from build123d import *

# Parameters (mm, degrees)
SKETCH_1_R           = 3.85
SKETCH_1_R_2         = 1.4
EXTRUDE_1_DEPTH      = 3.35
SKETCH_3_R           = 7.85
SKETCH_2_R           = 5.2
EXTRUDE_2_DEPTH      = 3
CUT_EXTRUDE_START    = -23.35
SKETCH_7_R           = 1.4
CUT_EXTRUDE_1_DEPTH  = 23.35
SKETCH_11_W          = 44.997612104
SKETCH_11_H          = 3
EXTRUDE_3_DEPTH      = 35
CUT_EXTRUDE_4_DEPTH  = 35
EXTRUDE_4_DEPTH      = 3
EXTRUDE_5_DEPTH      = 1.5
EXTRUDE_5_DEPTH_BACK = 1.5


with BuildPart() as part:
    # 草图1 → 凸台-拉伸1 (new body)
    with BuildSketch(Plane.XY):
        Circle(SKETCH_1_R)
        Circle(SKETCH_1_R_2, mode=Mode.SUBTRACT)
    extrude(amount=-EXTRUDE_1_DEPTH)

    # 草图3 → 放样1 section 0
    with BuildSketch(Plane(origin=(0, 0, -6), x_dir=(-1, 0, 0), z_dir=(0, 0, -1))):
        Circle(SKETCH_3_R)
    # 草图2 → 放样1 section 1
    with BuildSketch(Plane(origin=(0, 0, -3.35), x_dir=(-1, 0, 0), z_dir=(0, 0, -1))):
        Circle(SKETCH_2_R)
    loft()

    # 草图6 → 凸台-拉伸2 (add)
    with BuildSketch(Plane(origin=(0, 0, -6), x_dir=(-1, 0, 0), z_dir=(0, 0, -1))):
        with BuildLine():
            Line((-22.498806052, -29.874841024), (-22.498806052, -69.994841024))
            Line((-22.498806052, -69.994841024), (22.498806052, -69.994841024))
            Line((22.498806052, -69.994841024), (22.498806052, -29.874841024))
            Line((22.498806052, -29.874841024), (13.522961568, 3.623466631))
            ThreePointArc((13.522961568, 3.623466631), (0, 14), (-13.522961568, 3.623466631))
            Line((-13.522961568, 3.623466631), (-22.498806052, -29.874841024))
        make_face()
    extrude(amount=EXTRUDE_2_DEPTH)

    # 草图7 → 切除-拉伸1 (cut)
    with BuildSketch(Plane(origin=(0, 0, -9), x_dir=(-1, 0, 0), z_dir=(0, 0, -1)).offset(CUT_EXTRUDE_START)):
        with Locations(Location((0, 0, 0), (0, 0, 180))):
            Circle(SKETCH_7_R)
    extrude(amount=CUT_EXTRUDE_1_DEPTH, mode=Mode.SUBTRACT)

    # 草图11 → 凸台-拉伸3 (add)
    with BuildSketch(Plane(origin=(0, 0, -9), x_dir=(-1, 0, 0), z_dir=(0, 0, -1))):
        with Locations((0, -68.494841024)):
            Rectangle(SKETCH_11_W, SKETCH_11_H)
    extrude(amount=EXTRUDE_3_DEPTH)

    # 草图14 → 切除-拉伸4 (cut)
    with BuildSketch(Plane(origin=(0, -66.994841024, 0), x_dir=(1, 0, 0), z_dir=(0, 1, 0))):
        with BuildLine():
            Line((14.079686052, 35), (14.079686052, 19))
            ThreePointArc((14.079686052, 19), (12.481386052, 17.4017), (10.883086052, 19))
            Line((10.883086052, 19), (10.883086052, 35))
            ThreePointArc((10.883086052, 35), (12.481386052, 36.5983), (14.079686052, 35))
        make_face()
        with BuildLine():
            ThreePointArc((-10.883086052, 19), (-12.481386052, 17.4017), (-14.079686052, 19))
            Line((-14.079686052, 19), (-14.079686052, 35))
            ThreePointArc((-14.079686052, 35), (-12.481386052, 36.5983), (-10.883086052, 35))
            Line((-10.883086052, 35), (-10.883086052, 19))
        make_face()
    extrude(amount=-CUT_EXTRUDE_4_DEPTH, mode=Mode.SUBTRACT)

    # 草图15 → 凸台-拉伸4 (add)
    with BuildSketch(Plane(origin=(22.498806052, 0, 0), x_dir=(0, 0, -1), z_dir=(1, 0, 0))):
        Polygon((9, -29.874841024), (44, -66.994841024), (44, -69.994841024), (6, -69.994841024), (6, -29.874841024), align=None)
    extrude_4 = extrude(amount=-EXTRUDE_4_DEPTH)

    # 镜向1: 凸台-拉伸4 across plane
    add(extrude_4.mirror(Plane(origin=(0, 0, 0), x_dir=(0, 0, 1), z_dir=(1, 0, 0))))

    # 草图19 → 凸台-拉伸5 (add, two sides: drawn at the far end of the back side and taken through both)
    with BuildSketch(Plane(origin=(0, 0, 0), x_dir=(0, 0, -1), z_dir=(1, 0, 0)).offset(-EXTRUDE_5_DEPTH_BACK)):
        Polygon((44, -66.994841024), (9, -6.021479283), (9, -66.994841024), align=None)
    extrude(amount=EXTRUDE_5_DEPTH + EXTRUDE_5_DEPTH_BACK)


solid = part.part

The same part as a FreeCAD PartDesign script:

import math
import FreeCAD as App
import Part
import Sketcher
from FreeCAD import Vector
Q = App.Units.Quantity


def add_polygon(sketch, points):
    """Adds a closed chain of lines whose ends are joined by coincident constraints."""
    first, n = sketch.GeometryCount, len(points)
    for a, b in zip(points, points[1:] + points[:1]):
        sketch.addGeometry(Part.LineSegment(App.Vector(*a, 0), App.Vector(*b, 0)), False)
    for i in range(n):
        sketch.addConstraint(Sketcher.Constraint("Coincident", first + i, 2, first + (i + 1) % n, 1))

doc = App.newDocument("Part")
params = doc.addObject("Spreadsheet::Sheet", "Params")
for row, (alias, value) in enumerate([
    ("sketch1_diameter", "7.7 mm"),
    ("sketch1_diameter2", "2.8 mm"),
    ("pad1_length", "3.35 mm"),
    ("sketch2_diameter", "15.7 mm"),
    ("sketch3_diameter", "10.4 mm"),
    ("sketch4_radius", "14 mm"),
    ("sketch4_height", "40.12 mm"),
    ("sketch4_length", "34.68 mm"),
    ("pad2_length", "3 mm"),
    ("sketch5_diameter", "2.8 mm"),
    ("pocket1_length", "23.35 mm"),
    ("sketch6_height", "3 mm"),
    ("pad3_length", "35 mm"),
    ("sketch7_height", "16 mm"),
    ("pocket2_length", "35 mm"),
    ("sketch8_width", "3 mm"),
    ("sketch8_height", "38 mm"),
    ("sketch8_width2", "40.12 mm"),
    ("pad4_length", "3 mm"),
    ("sketch9_height", "35 mm"),
    ("pad5_length", "1.5 mm"),
    ("pad5_length2", "1.5 mm"),
], start=1):
    params.set(f"A{row}", alias)
    params.set(f"B{row}", "=" + value)
    params.setAlias(f"B{row}", alias)

body = doc.addObject("PartDesign::Body", "Body")

# Sketch on XY plane
sketch1 = body.newObject("Sketcher::SketchObject", "Sketch")
sketch1.AttachmentSupport = (doc.getObject("XY_Plane"), [""])
sketch1.MapMode = "FlatFace"
sketch1.addGeometry([
    Part.Circle(Vector(0, 0, 0), Vector(0, 0, 1), 3.85),
    Part.Circle(Vector(0, 0, 0), Vector(0, 0, 1), 1.4),
], False)
sketch1.addConstraint([
    Sketcher.Constraint("Coincident", 0, 3, -1, 1),
    Sketcher.Constraint("Coincident", 1, 3, -1, 1),
    Sketcher.Constraint("Diameter", 0, 7.7),
    Sketcher.Constraint("Diameter", 1, 2.8),
])
sketch1.setExpression("Constraints[2]", "Params.sketch1_diameter")
sketch1.setExpression("Constraints[3]", "Params.sketch1_diameter2")
pad1 = body.newObject("PartDesign::Pad", "Pad")
pad1.Profile = sketch1
pad1.setExpression("Length", "Params.pad1_length")
pad1.Reversed = True

# Sketch on XY plane
sketch2 = body.newObject("Sketcher::SketchObject", "Sketch001")
sketch2.AttachmentSupport = (doc.getObject("XY_Plane"), [""])
sketch2.MapMode = "FlatFace"
sketch2.AttachmentOffset = App.Placement(Vector(0, 0, -6), App.Rotation())
sketch2.addGeometry(Part.Circle(Vector(0, 0, 0), Vector(0, 0, 1), 7.85), False)
sketch2.addConstraint([
    Sketcher.Constraint("Coincident", 0, 3, -1, 1),
    Sketcher.Constraint("Diameter", 0, 15.7),
])
sketch2.setExpression("Constraints[1]", "Params.sketch2_diameter")

# Sketch on XY plane
sketch3 = body.newObject("Sketcher::SketchObject", "Sketch002")
sketch3.AttachmentSupport = (doc.getObject("XY_Plane"), [""])
sketch3.MapMode = "FlatFace"
sketch3.AttachmentOffset = App.Placement(Vector(0, 0, -3.35), App.Rotation())
sketch3.addGeometry(Part.Circle(Vector(0, 0, 0), Vector(0, 0, 1), 5.2), False)
sketch3.addConstraint([
    Sketcher.Constraint("Coincident", 0, 3, -1, 1),
    Sketcher.Constraint("Diameter", 0, 10.4),
])
sketch3.setExpression("Constraints[1]", "Params.sketch3_diameter")

additiveloft = body.newObject("PartDesign::AdditiveLoft", "AdditiveLoft")
additiveloft.Profile = sketch2
additiveloft.Sections = [sketch3]

# Sketch on XY plane
sketch4 = body.newObject("Sketcher::SketchObject", "Sketch003")
sketch4.AttachmentSupport = (doc.getObject("XY_Plane"), [""])
sketch4.MapMode = "FlatFace"
sketch4.AttachmentOffset = App.Placement(Vector(0, 0, -6), App.Rotation())
sketch4.addGeometry([
    Part.LineSegment(Vector(22.498806, -29.874841, 0), Vector(22.498806, -69.994841, 0)),  # 0
    Part.LineSegment(Vector(22.498806, -69.994841, 0), Vector(-22.498806, -69.994841, 0)),  # 1
    Part.LineSegment(Vector(-22.498806, -69.994841, 0), Vector(-22.498806, -29.874841, 0)),  # 2
    Part.LineSegment(Vector(-22.498806, -29.874841, 0), Vector(-13.522962, 3.623467, 0)),  # 3
    Part.ArcOfCircle(Part.Circle(Vector(0, 0, 0), Vector(0, 0, 1), 14), math.radians(15), math.radians(165)),  # 4
    Part.LineSegment(Vector(13.522962, 3.623467, 0), Vector(22.498806, -29.874841, 0)),  # 5
], False)
sketch4.addConstraint([
    Sketcher.Constraint("Coincident", 0, 2, 1, 1),
    Sketcher.Constraint("Coincident", 1, 2, 2, 1),
    Sketcher.Constraint("Coincident", 2, 2, 3, 1),
    Sketcher.Constraint("Tangent", 3, 2, 4, 2),
    Sketcher.Constraint("Tangent", 4, 1, 5, 1),
    Sketcher.Constraint("Coincident", 5, 2, 0, 1),
    Sketcher.Constraint("Vertical", 0),
    Sketcher.Constraint("Horizontal", 1),
    Sketcher.Constraint("Vertical", 2),
    Sketcher.Constraint("Coincident", 4, 3, -1, 1),
    Sketcher.Constraint("Symmetric", 2, 2, 5, 2, -2),
    Sketcher.Constraint("Radius", 4, 14.0),
    Sketcher.Constraint("Angle", 3, Q("75 deg")),
    Sketcher.Constraint("DistanceY", 0, 2, 0, 1, 40.12),
    Sketcher.Constraint("Distance", 3, 34.68),
])
sketch4.setExpression("Constraints[11]", "Params.sketch4_radius")
sketch4.setExpression("Constraints[13]", "Params.sketch4_height")
sketch4.setExpression("Constraints[14]", "Params.sketch4_length")
pad2 = body.newObject("PartDesign::Pad", "Pad001")
pad2.Profile = sketch4
pad2.setExpression("Length", "Params.pad2_length")
pad2.Reversed = True

# Sketch on XY plane
sketch5 = body.newObject("Sketcher::SketchObject", "Sketch004")
sketch5.AttachmentSupport = (doc.getObject("XY_Plane"), [""])
sketch5.MapMode = "FlatFace"
sketch5.AttachmentOffset = App.Placement(Vector(0, 0, 14.35), App.Rotation())
sketch5.addGeometry(Part.Circle(Vector(0, 0, 0), Vector(0, 0, 1), 1.4), False)
sketch5.addConstraint([
    Sketcher.Constraint("Coincident", 0, 3, -1, 1),
    Sketcher.Constraint("Diameter", 0, 2.8),
])
sketch5.setExpression("Constraints[1]", "Params.sketch5_diameter")
pocket1 = body.newObject("PartDesign::Pocket", "Pocket")
pocket1.Profile = sketch5
pocket1.setExpression("Length", "Params.pocket1_length")

# Sketch on XY plane
sketch6 = body.newObject("Sketcher::SketchObject", "Sketch005")
sketch6.AttachmentSupport = (doc.getObject("XY_Plane"), [""])
sketch6.MapMode = "FlatFace"
sketch6.AttachmentOffset = App.Placement(Vector(0, 0, -9), App.Rotation())
add_polygon(sketch6, [(22.498806, -66.994841), (22.498806, -69.994841), (-22.498806, -69.994841), (-22.498806, -66.994841)])  # lines 0-3
sketch6.addConstraint([
    Sketcher.Constraint("Vertical", 0),
    Sketcher.Constraint("Horizontal", 1),
    Sketcher.Constraint("Vertical", 2),
    Sketcher.Constraint("Horizontal", 3),
    Sketcher.Constraint("DistanceY", 0, 2, 0, 1, 3.0),
    Sketcher.Constraint("DistanceX", 1, 2, 1, 1, 44.997612),
    Sketcher.Constraint("DistanceY", 0, 2, -1, 1, 69.994841),
    Sketcher.Constraint("DistanceX", -1, 1, 0, 2, 22.498806),
])
sketch6.setExpression("Constraints[8]", "Params.sketch6_height")
pad3 = body.newObject("PartDesign::Pad", "Pad002")
pad3.Profile = sketch6
pad3.setExpression("Length", "Params.pad3_length")
pad3.Reversed = True

# Sketch on XZ plane
sketch7 = body.newObject("Sketcher::SketchObject", "Sketch006")
sketch7.AttachmentSupport = (doc.getObject("XZ_Plane"), [""])
sketch7.MapMode = "FlatFace"
sketch7.AttachmentOffset = App.Placement(Vector(0, 0, 66.994841), App.Rotation())
sketch7.addGeometry([
    Part.LineSegment(Vector(14.079686, -19, 0), Vector(14.079686, -35, 0)),  # 0
    Part.ArcOfCircle(Part.Circle(Vector(12.481386, -35, 0), Vector(0, 0, 1), 1.5983), math.radians(180), math.radians(360)),  # 1
    Part.LineSegment(Vector(10.883086, -35, 0), Vector(10.883086, -19, 0)),  # 2
    Part.ArcOfCircle(Part.Circle(Vector(12.481386, -19, 0), Vector(0, 0, 1), 1.5983), math.radians(0), math.radians(180)),  # 3
    Part.ArcOfCircle(Part.Circle(Vector(-12.481386, -19, 0), Vector(0, 0, 1), 1.5983), math.radians(0), math.radians(180)),  # 4
    Part.LineSegment(Vector(-10.883086, -19, 0), Vector(-10.883086, -35, 0)),  # 5
    Part.ArcOfCircle(Part.Circle(Vector(-12.481386, -35, 0), Vector(0, 0, 1), 1.5983), math.radians(180), math.radians(360)),  # 6
    Part.LineSegment(Vector(-14.079686, -35, 0), Vector(-14.079686, -19, 0)),  # 7
], False)
sketch7.addConstraint([
    Sketcher.Constraint("Tangent", 0, 2, 1, 2),
    Sketcher.Constraint("Tangent", 1, 1, 2, 1),
    Sketcher.Constraint("Tangent", 2, 2, 3, 2),
    Sketcher.Constraint("Tangent", 3, 1, 0, 1),
    Sketcher.Constraint("Tangent", 4, 1, 5, 1),
    Sketcher.Constraint("Tangent", 5, 2, 6, 2),
    Sketcher.Constraint("Tangent", 6, 1, 7, 1),
    Sketcher.Constraint("Tangent", 7, 2, 4, 2),
    Sketcher.Constraint("Vertical", 0),
    Sketcher.Constraint("Vertical", 2),
    Sketcher.Constraint("Vertical", 5),
    Sketcher.Constraint("Vertical", 7),
    Sketcher.Constraint("Equal", 3, 4),
    Sketcher.Constraint("Symmetric", 3, 3, 4, 3, -2),
    Sketcher.Constraint("Horizontal", 1, 3, 6, 3),
    Sketcher.Constraint("DistanceY", 0, 2, 0, 1, 16.0),
    Sketcher.Constraint("DistanceY", 1, 3, -1, 1, 35.0),
    Sketcher.Constraint("Radius", 1, 1.5983),
    Sketcher.Constraint("DistanceX", -1, 1, 1, 3, 12.481386),
])
sketch7.setExpression("Constraints[15]", "Params.sketch7_height")
pocket2 = body.newObject("PartDesign::Pocket", "Pocket001")
pocket2.Profile = sketch7
pocket2.setExpression("Length", "Params.pocket2_length")
pocket2.Reversed = True

# Sketch on YZ plane
sketch8 = body.newObject("Sketcher::SketchObject", "Sketch007")
sketch8.AttachmentSupport = (doc.getObject("YZ_Plane"), [""])
sketch8.MapMode = "FlatFace"
sketch8.AttachmentOffset = App.Placement(Vector(0, 0, 22.498806), App.Rotation())
add_polygon(sketch8, [(-66.994841, -44), (-29.874841, -9), (-29.874841, -6), (-69.994841, -6), (-69.994841, -44)])  # lines 0-4
sketch8.addConstraint([
    Sketcher.Constraint("Vertical", 1),
    Sketcher.Constraint("Horizontal", 2),
    Sketcher.Constraint("Vertical", 3),
    Sketcher.Constraint("Horizontal", 4),
    Sketcher.Constraint("Equal", 4, 1),
    Sketcher.Constraint("DistanceX", 4, 1, 4, 2, 3.0),
    Sketcher.Constraint("DistanceY", 3, 2, 3, 1, 38.0),
    Sketcher.Constraint("DistanceY", 0, 2, -1, 1, 9.0),
    Sketcher.Constraint("DistanceX", 2, 2, 2, 1, 40.12),
    Sketcher.Constraint("DistanceX", 0, 2, -1, 1, 29.874841),
])
sketch8.setExpression("Constraints[10]", "Params.sketch8_width")
sketch8.setExpression("Constraints[11]", "Params.sketch8_height")
sketch8.setExpression("Constraints[13]", "Params.sketch8_width2")
pad4 = body.newObject("PartDesign::Pad", "Pad003")
pad4.Profile = sketch8
pad4.setExpression("Length", "Params.pad4_length")
pad4.Reversed = True
doc.recompute()

mirrored = body.newObject("PartDesign::Mirrored", "Mirrored")
mirrored.Originals = [pad4]
mirrored.MirrorPlane = (doc.getObject("YZ_Plane"), [""])
body.Tip = mirrored

# Sketch on YZ plane
sketch9 = body.newObject("Sketcher::SketchObject", "Sketch008")
sketch9.AttachmentSupport = (doc.getObject("YZ_Plane"), [""])
sketch9.MapMode = "FlatFace"
add_polygon(sketch9, [(-66.994841, -44), (-6.021479, -9), (-66.994841, -9)])  # lines 0-2
sketch9.addConstraint([
    Sketcher.Constraint("Horizontal", 1),
    Sketcher.Constraint("Vertical", 2),
    Sketcher.Constraint("DistanceY", 2, 2, 2, 1, 35.0),
    Sketcher.Constraint("DistanceY", 0, 2, -1, 1, 9.0),
    Sketcher.Constraint("Distance", 0, 70.3047),
    Sketcher.Constraint("DistanceX", 0, 2, -1, 1, 6.021479),
])
sketch9.setExpression("Constraints[5]", "Params.sketch9_height")
pad5 = body.newObject("PartDesign::Pad", "Pad004")
pad5.Profile = sketch9
pad5.Type = "TwoLengths"
pad5.setExpression("Length", "Params.pad5_length")
pad5.setExpression("Length2", "Params.pad5_length2")

doc.recompute()
